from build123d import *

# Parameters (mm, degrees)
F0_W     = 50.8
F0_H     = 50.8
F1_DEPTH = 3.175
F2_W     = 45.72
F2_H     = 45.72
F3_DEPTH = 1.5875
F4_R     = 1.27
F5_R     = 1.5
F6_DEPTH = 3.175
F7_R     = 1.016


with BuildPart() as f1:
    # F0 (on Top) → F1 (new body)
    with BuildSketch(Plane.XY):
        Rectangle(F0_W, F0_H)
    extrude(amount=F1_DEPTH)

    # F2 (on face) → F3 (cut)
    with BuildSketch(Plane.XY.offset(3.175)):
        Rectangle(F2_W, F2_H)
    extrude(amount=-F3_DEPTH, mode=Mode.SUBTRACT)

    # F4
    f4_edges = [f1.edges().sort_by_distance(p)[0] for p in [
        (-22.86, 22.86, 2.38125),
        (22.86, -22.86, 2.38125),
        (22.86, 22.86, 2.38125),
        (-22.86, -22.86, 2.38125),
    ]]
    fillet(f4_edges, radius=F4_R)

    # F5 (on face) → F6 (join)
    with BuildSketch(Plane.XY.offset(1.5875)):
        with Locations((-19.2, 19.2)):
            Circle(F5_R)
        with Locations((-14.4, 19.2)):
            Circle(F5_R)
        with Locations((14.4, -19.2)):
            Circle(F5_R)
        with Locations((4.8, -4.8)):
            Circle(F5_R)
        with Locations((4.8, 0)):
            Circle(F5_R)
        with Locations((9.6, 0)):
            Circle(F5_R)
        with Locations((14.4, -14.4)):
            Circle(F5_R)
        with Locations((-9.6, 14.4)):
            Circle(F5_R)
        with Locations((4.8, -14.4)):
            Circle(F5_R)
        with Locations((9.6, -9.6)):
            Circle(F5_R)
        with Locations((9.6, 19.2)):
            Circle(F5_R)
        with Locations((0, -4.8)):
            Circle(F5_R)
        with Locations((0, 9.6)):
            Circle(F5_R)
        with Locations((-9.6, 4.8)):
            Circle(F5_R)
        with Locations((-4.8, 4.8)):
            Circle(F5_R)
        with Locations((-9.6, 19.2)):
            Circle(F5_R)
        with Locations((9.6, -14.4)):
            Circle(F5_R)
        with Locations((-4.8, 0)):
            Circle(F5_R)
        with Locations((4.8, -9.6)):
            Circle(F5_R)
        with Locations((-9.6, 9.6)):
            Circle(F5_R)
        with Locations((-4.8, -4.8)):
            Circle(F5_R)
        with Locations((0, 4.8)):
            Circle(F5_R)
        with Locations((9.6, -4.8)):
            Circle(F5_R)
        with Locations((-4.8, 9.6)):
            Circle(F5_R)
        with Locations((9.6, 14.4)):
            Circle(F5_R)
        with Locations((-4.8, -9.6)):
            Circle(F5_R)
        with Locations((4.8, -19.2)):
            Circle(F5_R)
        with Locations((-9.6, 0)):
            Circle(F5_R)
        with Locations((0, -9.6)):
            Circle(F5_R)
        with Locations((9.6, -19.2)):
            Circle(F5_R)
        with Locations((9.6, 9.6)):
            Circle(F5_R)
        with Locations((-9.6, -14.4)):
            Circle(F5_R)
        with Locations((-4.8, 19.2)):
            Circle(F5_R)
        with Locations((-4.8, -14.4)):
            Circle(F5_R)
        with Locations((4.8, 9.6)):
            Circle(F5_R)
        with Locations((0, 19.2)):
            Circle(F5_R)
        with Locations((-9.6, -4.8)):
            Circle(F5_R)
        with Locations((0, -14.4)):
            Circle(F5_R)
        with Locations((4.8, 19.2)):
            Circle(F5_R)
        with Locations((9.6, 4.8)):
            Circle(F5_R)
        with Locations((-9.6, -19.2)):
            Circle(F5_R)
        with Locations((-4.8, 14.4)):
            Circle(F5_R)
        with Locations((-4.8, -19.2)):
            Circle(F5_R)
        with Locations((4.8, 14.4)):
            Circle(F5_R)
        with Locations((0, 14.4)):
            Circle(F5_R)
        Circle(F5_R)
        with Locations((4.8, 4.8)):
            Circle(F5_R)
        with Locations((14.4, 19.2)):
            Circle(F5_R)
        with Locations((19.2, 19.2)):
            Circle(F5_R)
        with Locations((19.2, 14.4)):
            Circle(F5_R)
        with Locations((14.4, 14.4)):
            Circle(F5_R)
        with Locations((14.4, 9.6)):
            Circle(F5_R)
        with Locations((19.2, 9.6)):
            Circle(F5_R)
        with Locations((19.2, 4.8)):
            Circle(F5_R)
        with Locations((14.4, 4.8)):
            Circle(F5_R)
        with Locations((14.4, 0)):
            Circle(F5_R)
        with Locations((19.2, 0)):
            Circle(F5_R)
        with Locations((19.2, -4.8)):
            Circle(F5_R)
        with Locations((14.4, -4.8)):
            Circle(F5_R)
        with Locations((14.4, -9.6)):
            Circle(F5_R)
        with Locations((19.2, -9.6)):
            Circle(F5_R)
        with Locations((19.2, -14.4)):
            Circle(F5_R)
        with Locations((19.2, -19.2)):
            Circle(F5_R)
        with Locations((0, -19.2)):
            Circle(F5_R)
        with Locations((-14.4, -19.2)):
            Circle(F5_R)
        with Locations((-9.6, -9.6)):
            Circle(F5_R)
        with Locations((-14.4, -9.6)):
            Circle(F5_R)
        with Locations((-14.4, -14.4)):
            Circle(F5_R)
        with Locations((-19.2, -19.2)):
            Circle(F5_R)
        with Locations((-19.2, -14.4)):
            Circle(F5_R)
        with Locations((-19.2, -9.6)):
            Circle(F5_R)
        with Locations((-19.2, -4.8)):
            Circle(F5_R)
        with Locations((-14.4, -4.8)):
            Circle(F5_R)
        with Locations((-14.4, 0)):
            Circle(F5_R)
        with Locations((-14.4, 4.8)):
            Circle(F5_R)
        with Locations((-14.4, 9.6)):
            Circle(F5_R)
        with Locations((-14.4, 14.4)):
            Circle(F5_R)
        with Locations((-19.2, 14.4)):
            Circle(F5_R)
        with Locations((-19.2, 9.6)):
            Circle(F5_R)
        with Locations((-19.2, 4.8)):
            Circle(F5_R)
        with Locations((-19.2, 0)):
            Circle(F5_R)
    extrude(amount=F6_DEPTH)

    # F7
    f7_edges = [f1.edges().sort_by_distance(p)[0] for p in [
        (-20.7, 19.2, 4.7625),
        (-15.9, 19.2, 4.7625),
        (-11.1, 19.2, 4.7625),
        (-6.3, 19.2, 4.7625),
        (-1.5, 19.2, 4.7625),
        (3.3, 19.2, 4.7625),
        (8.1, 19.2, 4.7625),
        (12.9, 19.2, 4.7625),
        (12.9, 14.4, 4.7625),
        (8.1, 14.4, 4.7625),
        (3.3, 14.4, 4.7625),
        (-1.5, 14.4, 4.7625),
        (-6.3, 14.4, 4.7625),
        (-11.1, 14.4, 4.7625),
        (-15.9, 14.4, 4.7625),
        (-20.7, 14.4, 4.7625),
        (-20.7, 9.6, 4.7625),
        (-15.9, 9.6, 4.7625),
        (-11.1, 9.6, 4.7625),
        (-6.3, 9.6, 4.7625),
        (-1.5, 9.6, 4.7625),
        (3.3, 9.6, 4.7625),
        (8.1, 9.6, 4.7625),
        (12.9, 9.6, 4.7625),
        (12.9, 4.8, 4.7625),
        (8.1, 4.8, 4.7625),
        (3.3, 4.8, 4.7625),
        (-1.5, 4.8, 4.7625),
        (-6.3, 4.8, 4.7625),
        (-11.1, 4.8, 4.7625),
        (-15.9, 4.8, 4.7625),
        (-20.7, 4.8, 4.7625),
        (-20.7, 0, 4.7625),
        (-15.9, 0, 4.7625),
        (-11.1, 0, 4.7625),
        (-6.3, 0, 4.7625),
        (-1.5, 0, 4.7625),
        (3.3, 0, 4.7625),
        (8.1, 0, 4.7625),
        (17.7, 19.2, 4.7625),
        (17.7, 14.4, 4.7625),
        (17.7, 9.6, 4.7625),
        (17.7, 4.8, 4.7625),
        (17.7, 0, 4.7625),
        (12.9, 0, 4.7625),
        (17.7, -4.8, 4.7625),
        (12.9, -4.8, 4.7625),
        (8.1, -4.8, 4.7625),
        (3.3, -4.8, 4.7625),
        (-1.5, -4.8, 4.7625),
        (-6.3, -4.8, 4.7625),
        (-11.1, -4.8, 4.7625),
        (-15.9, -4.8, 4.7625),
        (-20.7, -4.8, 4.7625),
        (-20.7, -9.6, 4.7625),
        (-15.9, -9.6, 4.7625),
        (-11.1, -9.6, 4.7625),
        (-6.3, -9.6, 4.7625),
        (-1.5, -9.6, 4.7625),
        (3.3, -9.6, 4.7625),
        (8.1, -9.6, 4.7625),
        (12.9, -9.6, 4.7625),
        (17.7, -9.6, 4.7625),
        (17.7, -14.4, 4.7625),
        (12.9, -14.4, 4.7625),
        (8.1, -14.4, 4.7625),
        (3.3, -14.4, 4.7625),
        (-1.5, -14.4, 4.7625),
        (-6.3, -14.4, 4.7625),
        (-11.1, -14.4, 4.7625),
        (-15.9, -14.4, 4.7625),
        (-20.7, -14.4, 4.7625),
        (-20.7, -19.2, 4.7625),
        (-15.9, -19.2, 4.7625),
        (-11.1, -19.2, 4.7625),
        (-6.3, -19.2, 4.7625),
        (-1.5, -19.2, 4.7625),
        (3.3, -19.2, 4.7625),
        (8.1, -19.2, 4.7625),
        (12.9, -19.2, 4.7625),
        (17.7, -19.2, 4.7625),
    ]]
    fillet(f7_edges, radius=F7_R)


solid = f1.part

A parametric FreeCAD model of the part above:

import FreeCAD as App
import Part
import Sketcher
from FreeCAD import Vector
Q = App.Units.Quantity


def edges_at(feature, points):
    """Names of the edges that pass closest to the given points."""
    edges = feature.Shape.Edges
    near = lambda p: min(range(len(edges)), key=lambda i: edges[i].distToShape(Part.Vertex(*p))[0])
    return sorted({f"Edge{near(p) + 1}" for p in points})


def add_polygon(sketch, points):
    """Adds a closed chain of lines whose ends are joined by coincident constraints."""
    first, n = sketch.GeometryCount, len(points)
    for a, b in zip(points, points[1:] + points[:1]):
        sketch.addGeometry(Part.LineSegment(App.Vector(*a, 0), App.Vector(*b, 0)), False)
    for i in range(n):
        sketch.addConstraint(Sketcher.Constraint("Coincident", first + i, 2, first + (i + 1) % n, 1))

doc = App.newDocument("Part")
body = doc.addObject("PartDesign::Body", "Body")

sketch1 = doc.addObject("Sketcher::SketchObject", "Sketch")
body.addObject(sketch1)
sketch1.AttachmentSupport = (doc.XY_Plane, [""])
sketch1.MapMode = "FlatFace"
add_polygon(sketch1, [(-25.4, 25.4), (-25.4, -25.4), (25.4, -25.4), (25.4, 25.4)])
sketch1.addConstraint([
    Sketcher.Constraint("Vertical", 0),
    Sketcher.Constraint("Horizontal", 1),
    Sketcher.Constraint("Vertical", 2),
    Sketcher.Constraint("Horizontal", 3),
    Sketcher.Constraint("Symmetric", 0, 2, 2, 2, -1, 1),
    Sketcher.Constraint("Equal", 3, 0),
    Sketcher.Constraint("DistanceX", 1, 1, 1, 2, Q("2 in")),
])
pad1 = doc.addObject("PartDesign::Pad", "Pad")
body.addObject(pad1)
pad1.Profile = sketch1
pad1.Length = Q("0.125 in")

sketch2 = doc.addObject("Sketcher::SketchObject", "Sketch001")
body.addObject(sketch2)
sketch2.AttachmentSupport = (doc.XY_Plane, [""])
sketch2.MapMode = "FlatFace"
sketch2.AttachmentOffset = App.Placement(Vector(0, 0, 0.125 * 25.4), App.Rotation())
add_polygon(sketch2, [(-22.86, 22.86), (-22.86, -22.86), (22.86, -22.86), (22.86, 22.86)])
sketch2.addConstraint([
    Sketcher.Constraint("Vertical", 0),
    Sketcher.Constraint("Horizontal", 1),
    Sketcher.Constraint("Vertical", 2),
    Sketcher.Constraint("Horizontal", 3),
    Sketcher.Constraint("Symmetric", 0, 2, 2, 2, -1, 1),
    Sketcher.Constraint("Equal", 3, 0),
    Sketcher.Constraint("DistanceX", 1, 1, 1, 2, Q("1.8 in")),
])
pocket1 = doc.addObject("PartDesign::Pocket", "Pocket")
body.addObject(pocket1)
pocket1.Profile = sketch2
pocket1.Length = Q("0.0625 in")
doc.recompute()

fillet = doc.addObject("PartDesign::Fillet", "Fillet")
body.addObject(fillet)
fillet.Base = (pocket1, edges_at(pocket1, [
    (-22.86, 22.86, 2.381),
    (22.86, -22.86, 2.381),
    (22.86, 22.86, 2.381),
    (-22.86, -22.86, 2.381),
]))
fillet.Radius = Q("0.05 in")

sketch3 = doc.addObject("Sketcher::SketchObject", "Sketch002")
body.addObject(sketch3)
sketch3.AttachmentSupport = (doc.XY_Plane, [""])
sketch3.MapMode = "FlatFace"
sketch3.AttachmentOffset = App.Placement(Vector(0, 0, 0.0625 * 25.4), App.Rotation())
sketch3.addGeometry([
    Part.Circle(Vector(-19.2, 19.2, 0), Vector(0, 0, 1), 1.5),
    Part.Circle(Vector(-14.4, 19.2, 0), Vector(0, 0, 1), 1.5),
    Part.Circle(Vector(14.4, -19.2, 0), Vector(0, 0, 1), 1.5),
    Part.Circle(Vector(4.8, -4.8, 0), Vector(0, 0, 1), 1.5),
    Part.Circle(Vector(4.8, 0, 0), Vector(0, 0, 1), 1.5),
    Part.Circle(Vector(9.6, 0, 0), Vector(0, 0, 1), 1.5),
    Part.Circle(Vector(14.4, -14.4, 0), Vector(0, 0, 1), 1.5),
    Part.Circle(Vector(-9.6, 14.4, 0), Vector(0, 0, 1), 1.5),
    Part.Circle(Vector(4.8, -14.4, 0), Vector(0, 0, 1), 1.5),
    Part.Circle(Vector(9.6, -9.6, 0), Vector(0, 0, 1), 1.5),
    Part.Circle(Vector(9.6, 19.2, 0), Vector(0, 0, 1), 1.5),
    Part.Circle(Vector(0, -4.8, 0), Vector(0, 0, 1), 1.5),
    Part.Circle(Vector(0, 9.6, 0), Vector(0, 0, 1), 1.5),
    Part.Circle(Vector(-9.6, 4.8, 0), Vector(0, 0, 1), 1.5),
    Part.Circle(Vector(-4.8, 4.8, 0), Vector(0, 0, 1), 1.5),
    Part.Circle(Vector(-9.6, 19.2, 0), Vector(0, 0, 1), 1.5),
    Part.Circle(Vector(9.6, -14.4, 0), Vector(0, 0, 1), 1.5),
    Part.Circle(Vector(-4.8, 0, 0), Vector(0, 0, 1), 1.5),
    Part.Circle(Vector(4.8, -9.6, 0), Vector(0, 0, 1), 1.5),
    Part.Circle(Vector(-9.6, 9.6, 0), Vector(0, 0, 1), 1.5),
    Part.Circle(Vector(-4.8, -4.8, 0), Vector(0, 0, 1), 1.5),
    Part.Circle(Vector(0, 4.8, 0), Vector(0, 0, 1), 1.5),
    Part.Circle(Vector(9.6, -4.8, 0), Vector(0, 0, 1), 1.5),
    Part.Circle(Vector(-4.8, 9.6, 0), Vector(0, 0, 1), 1.5),
    Part.Circle(Vector(9.6, 14.4, 0), Vector(0, 0, 1), 1.5),
    Part.Circle(Vector(-4.8, -9.6, 0), Vector(0, 0, 1), 1.5),
    Part.Circle(Vector(4.8, -19.2, 0), Vector(0, 0, 1), 1.5),
    Part.Circle(Vector(-9.6, 0, 0), Vector(0, 0, 1), 1.5),
    Part.Circle(Vector(0, -9.6, 0), Vector(0, 0, 1), 1.5),
    Part.Circle(Vector(9.6, -19.2, 0), Vector(0, 0, 1), 1.5),
    Part.Circle(Vector(9.6, 9.6, 0), Vector(0, 0, 1), 1.5),
    Part.Circle(Vector(-9.6, -14.4, 0), Vector(0, 0, 1), 1.5),
    Part.Circle(Vector(-4.8, 19.2, 0), Vector(0, 0, 1), 1.5),
    Part.Circle(Vector(-4.8, -14.4, 0), Vector(0, 0, 1), 1.5),
    Part.Circle(Vector(4.8, 9.6, 0), Vector(0, 0, 1), 1.5),
    Part.Circle(Vector(0, 19.2, 0), Vector(0, 0, 1), 1.5),
    Part.Circle(Vector(-9.6, -4.8, 0), Vector(0, 0, 1), 1.5),
    Part.Circle(Vector(0, -14.4, 0), Vector(0, 0, 1), 1.5),
    Part.Circle(Vector(4.8, 19.2, 0), Vector(0, 0, 1), 1.5),
    Part.Circle(Vector(9.6, 4.8, 0), Vector(0, 0, 1), 1.5),
    Part.Circle(Vector(-9.6, -19.2, 0), Vector(0, 0, 1), 1.5),
    Part.Circle(Vector(-4.8, 14.4, 0), Vector(0, 0, 1), 1.5),
    Part.Circle(Vector(-4.8, -19.2, 0), Vector(0, 0, 1), 1.5),
    Part.Circle(Vector(4.8, 14.4, 0), Vector(0, 0, 1), 1.5),
    Part.Circle(Vector(0, 14.4, 0), Vector(0, 0, 1), 1.5),
    Part.Circle(Vector(0, 0, 0), Vector(0, 0, 1), 1.5),
    Part.Circle(Vector(4.8, 4.8, 0), Vector(0, 0, 1), 1.5),
    Part.Circle(Vector(14.4, 19.2, 0), Vector(0, 0, 1), 1.5),
    Part.Circle(Vector(19.2, 19.2, 0), Vector(0, 0, 1), 1.5),
    Part.Circle(Vector(19.2, 14.4, 0), Vector(0, 0, 1), 1.5),
    Part.Circle(Vector(14.4, 14.4, 0), Vector(0, 0, 1), 1.5),
    Part.Circle(Vector(14.4, 9.6, 0), Vector(0, 0, 1), 1.5),
    Part.Circle(Vector(19.2, 9.6, 0), Vector(0, 0, 1), 1.5),
    Part.Circle(Vector(19.2, 4.8, 0), Vector(0, 0, 1), 1.5),
    Part.Circle(Vector(14.4, 4.8, 0), Vector(0, 0, 1), 1.5),
    Part.Circle(Vector(14.4, 0, 0), Vector(0, 0, 1), 1.5),
    Part.Circle(Vector(19.2, 0, 0), Vector(0, 0, 1), 1.5),
    Part.Circle(Vector(19.2, -4.8, 0), Vector(0, 0, 1), 1.5),
    Part.Circle(Vector(14.4, -4.8, 0), Vector(0, 0, 1), 1.5),
    Part.Circle(Vector(14.4, -9.6, 0), Vector(0, 0, 1), 1.5),
    Part.Circle(Vector(19.2, -9.6, 0), Vector(0, 0, 1), 1.5),
    Part.Circle(Vector(19.2, -14.4, 0), Vector(0, 0, 1), 1.5),
    Part.Circle(Vector(19.2, -19.2, 0), Vector(0, 0, 1), 1.5),
    Part.Circle(Vector(0, -19.2, 0), Vector(0, 0, 1), 1.5),
    Part.Circle(Vector(-14.4, -19.2, 0), Vector(0, 0, 1), 1.5),
    Part.Circle(Vector(-9.6, -9.6, 0), Vector(0, 0, 1), 1.5),
    Part.Circle(Vector(-14.4, -9.6, 0), Vector(0, 0, 1), 1.5),
    Part.Circle(Vector(-14.4, -14.4, 0), Vector(0, 0, 1), 1.5),
    Part.Circle(Vector(-19.2, -19.2, 0), Vector(0, 0, 1), 1.5),
    Part.Circle(Vector(-19.2, -14.4, 0), Vector(0, 0, 1), 1.5),
    Part.Circle(Vector(-19.2, -9.6, 0), Vector(0, 0, 1), 1.5),
    Part.Circle(Vector(-19.2, -4.8, 0), Vector(0, 0, 1), 1.5),
    Part.Circle(Vector(-14.4, -4.8, 0), Vector(0, 0, 1), 1.5),
    Part.Circle(Vector(-14.4, 0, 0), Vector(0, 0, 1), 1.5),
    Part.Circle(Vector(-14.4, 4.8, 0), Vector(0, 0, 1), 1.5),
    Part.Circle(Vector(-14.4, 9.6, 0), Vector(0, 0, 1), 1.5),
    Part.Circle(Vector(-14.4, 14.4, 0), Vector(0, 0, 1), 1.5),
    Part.Circle(Vector(-19.2, 14.4, 0), Vector(0, 0, 1), 1.5),
    Part.Circle(Vector(-19.2, 9.6, 0), Vector(0, 0, 1), 1.5),
    Part.Circle(Vector(-19.2, 4.8, 0), Vector(0, 0, 1), 1.5),
    Part.Circle(Vector(-19.2, 0, 0), Vector(0, 0, 1), 1.5),
], False)
sketch3.addConstraint([
    Sketcher.Constraint("Coincident", 45, 3, -1, 1),
    Sketcher.Constraint("Equal", 0, 1),
    Sketcher.Constraint("Equal", 1, 2),
    Sketcher.Constraint("Equal", 2, 3),
    Sketcher.Constraint("Equal", 3, 4),
    Sketcher.Constraint("Equal", 4, 5),
    Sketcher.Constraint("Equal", 5, 6),
    Sketcher.Constraint("Equal", 6, 7),
    Sketcher.Constraint("Equal", 7, 8),
    Sketcher.Constraint("Equal", 8, 9),
    Sketcher.Constraint("Equal", 9, 10),
    Sketcher.Constraint("Equal", 10, 11),
    Sketcher.Constraint("Equal", 11, 12),
    Sketcher.Constraint("Equal", 12, 13),
    Sketcher.Constraint("Equal", 13, 14),
    Sketcher.Constraint("Equal", 14, 15),
    Sketcher.Constraint("Equal", 15, 16),
    Sketcher.Constraint("Equal", 16, 17),
    Sketcher.Constraint("Equal", 17, 18),
    Sketcher.Constraint("Equal", 18, 19),
    Sketcher.Constraint("Equal", 19, 20),
    Sketcher.Constraint("Equal", 20, 21),
    Sketcher.Constraint("Equal", 21, 22),
    Sketcher.Constraint("Equal", 22, 23),
    Sketcher.Constraint("Equal", 23, 24),
    Sketcher.Constraint("Equal", 24, 25),
    Sketcher.Constraint("Equal", 25, 26),
    Sketcher.Constraint("Equal", 26, 27),
    Sketcher.Constraint("Equal", 27, 28),
    Sketcher.Constraint("Equal", 28, 29),
    Sketcher.Constraint("Equal", 29, 30),
    Sketcher.Constraint("Equal", 30, 31),
    Sketcher.Constraint("Equal", 31, 32),
    Sketcher.Constraint("Equal", 32, 33),
    Sketcher.Constraint("Equal", 33, 34),
    Sketcher.Constraint("Equal", 34, 35),
    Sketcher.Constraint("Equal", 35, 36),
    Sketcher.Constraint("Equal", 36, 37),
    Sketcher.Constraint("Equal", 37, 38),
    Sketcher.Constraint("Equal", 38, 39),
    Sketcher.Constraint("Equal", 39, 40),
    Sketcher.Constraint("Equal", 40, 41),
    Sketcher.Constraint("Equal", 41, 42),
    Sketcher.Constraint("Equal", 42, 43),
    Sketcher.Constraint("Equal", 43, 44),
    Sketcher.Constraint("Equal", 44, 45),
    Sketcher.Constraint("Equal", 45, 46),
    Sketcher.Constraint("Equal", 46, 47),
    Sketcher.Constraint("Equal", 47, 48),
    Sketcher.Constraint("Equal", 48, 49),
    Sketcher.Constraint("Equal", 49, 50),
    Sketcher.Constraint("Equal", 50, 51),
    Sketcher.Constraint("Equal", 51, 52),
    Sketcher.Constraint("Equal", 52, 53),
    Sketcher.Constraint("Equal", 53, 54),
    Sketcher.Constraint("Equal", 54, 55),
    Sketcher.Constraint("Equal", 55, 56),
    Sketcher.Constraint("Equal", 56, 57),
    Sketcher.Constraint("Equal", 57, 58),
    Sketcher.Constraint("Equal", 58, 59),
    Sketcher.Constraint("Equal", 59, 60),
    Sketcher.Constraint("Equal", 60, 61),
    Sketcher.Constraint("Equal", 61, 62),
    Sketcher.Constraint("Equal", 62, 63),
    Sketcher.Constraint("Equal", 63, 64),
    Sketcher.Constraint("Equal", 64, 65),
    Sketcher.Constraint("Equal", 65, 66),
    Sketcher.Constraint("Equal", 66, 67),
    Sketcher.Constraint("Equal", 67, 68),
    Sketcher.Constraint("Equal", 68, 69),
    Sketcher.Constraint("Equal", 69, 70),
    Sketcher.Constraint("Equal", 70, 71),
    Sketcher.Constraint("Equal", 71, 72),
    Sketcher.Constraint("Equal", 72, 73),
    Sketcher.Constraint("Equal", 73, 74),
    Sketcher.Constraint("Equal", 74, 75),
    Sketcher.Constraint("Equal", 75, 76),
    Sketcher.Constraint("Equal", 76, 77),
    Sketcher.Constraint("Equal", 77, 78),
    Sketcher.Constraint("Equal", 78, 79),
    Sketcher.Constraint("Equal", 79, 80),
    Sketcher.Constraint("Symmetric", 1, 3, 2, 3, -1, 1),
    Sketcher.Constraint("Symmetric", 3, 3, 14, 3, -1, 1),
    Sketcher.Constraint("Symmetric", 7, 3, 16, 3, -1, 1),
    Sketcher.Constraint("Symmetric", 4, 3, 17, 3, -1, 1),
    Sketcher.Constraint("Symmetric", 9, 3, 19, 3, -1, 1),
    Sketcher.Constraint("Symmetric", 11, 3, 21, 3, -1, 1),
    Sketcher.Constraint("Symmetric", 13, 3, 22, 3, -1, 1),
    Sketcher.Constraint("Symmetric", 18, 3, 23, 3, -1, 1),
    Sketcher.Constraint("Symmetric", 5, 3, 27, 3, -1, 1),
    Sketcher.Constraint("Symmetric", 12, 3, 28, 3, -1, 1),
    Sketcher.Constraint("Symmetric", 15, 3, 29, 3, -1, 1),
    Sketcher.Constraint("Symmetric", 24, 3, 31, 3, -1, 1),
    Sketcher.Constraint("Symmetric", 26, 3, 32, 3, -1, 1),
    Sketcher.Constraint("Symmetric", 25, 3, 34, 3, -1, 1),
    Sketcher.Constraint("Symmetric", 36, 3, 39, 3, -1, 1),
    Sketcher.Constraint("Symmetric", 10, 3, 40, 3, -1, 1),
    Sketcher.Constraint("Symmetric", 8, 3, 41, 3, -1, 1),
    Sketcher.Constraint("Symmetric", 38, 3, 42, 3, -1, 1),
    Sketcher.Constraint("Symmetric", 33, 3, 43, 3, -1, 1),
    Sketcher.Constraint("Symmetric", 37, 3, 44, 3, -1, 1),
    Sketcher.Constraint("Symmetric", 20, 3, 46, 3, -1, 1),
    Sketcher.Constraint("Symmetric", 0, 3, 62, 3, -1, 1),
    Sketcher.Constraint("Symmetric", 35, 3, 63, 3, -1, 1),
    Sketcher.Constraint("Symmetric", 47, 3, 64, 3, -1, 1),
    Sketcher.Constraint("Symmetric", 30, 3, 65, 3, -1, 1),
    Sketcher.Constraint("Symmetric", 51, 3, 66, 3, -1, 1),
    Sketcher.Constraint("Symmetric", 50, 3, 67, 3, -1, 1),
    Sketcher.Constraint("Symmetric", 48, 3, 68, 3, -1, 1),
    Sketcher.Constraint("Symmetric", 49, 3, 69, 3, -1, 1),
    Sketcher.Constraint("Symmetric", 52, 3, 70, 3, -1, 1),
    Sketcher.Constraint("Symmetric", 53, 3, 71, 3, -1, 1),
    Sketcher.Constraint("Symmetric", 54, 3, 72, 3, -1, 1),
    Sketcher.Constraint("Symmetric", 55, 3, 73, 3, -1, 1),
    Sketcher.Constraint("Symmetric", 58, 3, 74, 3, -1, 1),
    Sketcher.Constraint("Symmetric", 59, 3, 75, 3, -1, 1),
    Sketcher.Constraint("Symmetric", 6, 3, 76, 3, -1, 1),
    Sketcher.Constraint("Symmetric", 61, 3, 77, 3, -1, 1),
    Sketcher.Constraint("Symmetric", 60, 3, 78, 3, -1, 1),
    Sketcher.Constraint("Symmetric", 57, 3, 79, 3, -1, 1),
    Sketcher.Constraint("Symmetric", 56, 3, 80, 3, -1, 1),
    Sketcher.Constraint("Symmetric", 10, 3, 15, 3, -2),
    Sketcher.Constraint("Symmetric", 3, 3, 20, 3, -2),
    Sketcher.Constraint("Symmetric", 7, 3, 24, 3, -2),
    Sketcher.Constraint("Symmetric", 18, 3, 25, 3, -2),
    Sketcher.Constraint("Symmetric", 19, 3, 30, 3, -2),
    Sketcher.Constraint("Symmetric", 8, 3, 33, 3, -2),
    Sketcher.Constraint("Symmetric", 22, 3, 36, 3, -2),
    Sketcher.Constraint("Symmetric", 32, 3, 38, 3, -2),
    Sketcher.Constraint("Symmetric", 1, 3, 47, 3, -2),
    Sketcher.Constraint("Symmetric", 0, 3, 48, 3, -2),
    Sketcher.Constraint("Symmetric", 59, 3, 66, 3, -2),
    Sketcher.Constraint("Symmetric", 6, 3, 67, 3, -2),
    Sketcher.Constraint("Symmetric", 61, 3, 69, 3, -2),
    Sketcher.Constraint("Symmetric", 60, 3, 70, 3, -2),
    Sketcher.Constraint("Symmetric", 57, 3, 71, 3, -2),
    Sketcher.Constraint("Symmetric", 58, 3, 72, 3, -2),
    Sketcher.Constraint("PointOnObject", 4, 3, -1),
    Sketcher.Constraint("PointOnObject", 5, 3, -1),
    Sketcher.Constraint("PointOnObject", 11, 3, -2),
    Sketcher.Constraint("PointOnObject", 12, 3, -2),
    Sketcher.Constraint("PointOnObject", 35, 3, -2),
    Sketcher.Constraint("PointOnObject", 37, 3, -2),
    Sketcher.Constraint("PointOnObject", 55, 3, -1),
    Sketcher.Constraint("PointOnObject", 56, 3, -1),
    Sketcher.Constraint("Horizontal", 0, 3, 1, 3),
    Sketcher.Constraint("Horizontal", 6, 3, 8, 3),
    Sketcher.Constraint("Horizontal", 1, 3, 10, 3),
    Sketcher.Constraint("Horizontal", 3, 3, 11, 3),
    Sketcher.Constraint("Horizontal", 13, 3, 14, 3),
    Sketcher.Constraint("Horizontal", 8, 3, 16, 3),
    Sketcher.Constraint("Horizontal", 9, 3, 18, 3),
    Sketcher.Constraint("Horizontal", 12, 3, 19, 3),
    Sketcher.Constraint("Horizontal", 2, 3, 26, 3),
    Sketcher.Constraint("Horizontal", 32, 3, 35, 3),
    Sketcher.Constraint("Horizontal", 33, 3, 37, 3),
    Sketcher.Constraint("Horizontal", 44, 3, 49, 3),
    Sketcher.Constraint("Horizontal", 34, 3, 51, 3),
    Sketcher.Constraint("Horizontal", 51, 3, 52, 3),
    Sketcher.Constraint("Horizontal", 46, 3, 53, 3),
    Sketcher.Constraint("Horizontal", 53, 3, 54, 3),
    Sketcher.Constraint("Vertical", 3, 3, 4, 3),
    Sketcher.Constraint("Vertical", 2, 3, 6, 3),
    Sketcher.Constraint("Vertical", 4, 3, 8, 3),
    Sketcher.Constraint("Vertical", 5, 3, 9, 3),
    Sketcher.Constraint("Vertical", 9, 3, 10, 3),
    Sketcher.Constraint("Vertical", 7, 3, 13, 3),
    Sketcher.Constraint("Vertical", 13, 3, 15, 3),
    Sketcher.Constraint("Vertical", 8, 3, 18, 3),
    Sketcher.Constraint("Vertical", 18, 3, 26, 3),
    Sketcher.Constraint("Vertical", 48, 3, 49, 3),
    Sketcher.Constraint("Vertical", 50, 3, 51, 3),
    Sketcher.Constraint("Vertical", 49, 3, 52, 3),
    Sketcher.Constraint("Vertical", 52, 3, 53, 3),
    Sketcher.Constraint("Vertical", 51, 3, 54, 3),
    Sketcher.Constraint("Vertical", 54, 3, 55, 3),
    Sketcher.Constraint("Vertical", 53, 3, 56, 3),
    Sketcher.Constraint("Diameter", 0, 3.0),
    Sketcher.Constraint("DistanceX", 0, 3, -1, 1, 19.2),
    Sketcher.Constraint("DistanceY", -1, 1, 0, 3, 19.2),
    Sketcher.Constraint("DistanceX", 1, 3, -1, 1, 14.4),
    Sketcher.Constraint("DistanceX", -1, 1, 3, 3, 4.8),
    Sketcher.Constraint("DistanceY", 3, 3, -1, 1, 4.8),
    Sketcher.Constraint("DistanceX", -1, 1, 5, 3, 9.6),
    Sketcher.Constraint("DistanceY", 6, 3, -1, 1, 14.4),
    Sketcher.Constraint("DistanceY", 9, 3, -1, 1, 9.6),
])
pad2 = doc.addObject("PartDesign::Pad", "Pad001")
body.addObject(pad2)
pad2.Profile = sketch3
pad2.Length = Q("0.125 in")
doc.recompute()

fillet2 = doc.addObject("PartDesign::Fillet", "Fillet001")
body.addObject(fillet2)
fillet2.Base = (pad2, edges_at(pad2, [
    (-20.7, 19.2, 4.763),
    (-15.9, 19.2, 4.763),
    (-11.1, 19.2, 4.763),
    (-6.3, 19.2, 4.763),
    (-1.5, 19.2, 4.763),
    (3.3, 19.2, 4.763),
    (8.1, 19.2, 4.763),
    (12.9, 19.2, 4.763),
    (12.9, 14.4, 4.763),
    (8.1, 14.4, 4.763),
    (3.3, 14.4, 4.763),
    (-1.5, 14.4, 4.763),
    (-6.3, 14.4, 4.763),
    (-11.1, 14.4, 4.763),
    (-15.9, 14.4, 4.763),
    (-20.7, 14.4, 4.763),
    (-20.7, 9.6, 4.763),
    (-15.9, 9.6, 4.763),
    (-11.1, 9.6, 4.763),
    (-6.3, 9.6, 4.763),
    (-1.5, 9.6, 4.763),
    (3.3, 9.6, 4.763),
    (8.1, 9.6, 4.763),
    (12.9, 9.6, 4.763),
    (12.9, 4.8, 4.763),
    (8.1, 4.8, 4.763),
    (3.3, 4.8, 4.763),
    (-1.5, 4.8, 4.763),
    (-6.3, 4.8, 4.763),
    (-11.1, 4.8, 4.763),
    (-15.9, 4.8, 4.763),
    (-20.7, 4.8, 4.763),
    (-20.7, 0, 4.763),
    (-15.9, 0, 4.763),
    (-11.1, 0, 4.763),
    (-6.3, 0, 4.763),
    (-1.5, 0, 4.763),
    (3.3, 0, 4.763),
    (8.1, 0, 4.763),
    (17.7, 19.2, 4.763),
    (17.7, 14.4, 4.763),
    (17.7, 9.6, 4.763),
    (17.7, 4.8, 4.763),
    (17.7, 0, 4.763),
    (12.9, 0, 4.763),
    (17.7, -4.8, 4.763),
    (12.9, -4.8, 4.763),
    (8.1, -4.8, 4.763),
    (3.3, -4.8, 4.763),
    (-1.5, -4.8, 4.763),
    (-6.3, -4.8, 4.763),
    (-11.1, -4.8, 4.763),
    (-15.9, -4.8, 4.763),
    (-20.7, -4.8, 4.763),
    (-20.7, -9.6, 4.763),
    (-15.9, -9.6, 4.763),
    (-11.1, -9.6, 4.763),
    (-6.3, -9.6, 4.763),
    (-1.5, -9.6, 4.763),
    (3.3, -9.6, 4.763),
    (8.1, -9.6, 4.763),
    (12.9, -9.6, 4.763),
    (17.7, -9.6, 4.763),
    (17.7, -14.4, 4.763),
    (12.9, -14.4, 4.763),
    (8.1, -14.4, 4.763),
    (3.3, -14.4, 4.763),
    (-1.5, -14.4, 4.763),
    (-6.3, -14.4, 4.763),
    (-11.1, -14.4, 4.763),
    (-15.9, -14.4, 4.763),
    (-20.7, -14.4, 4.763),
    (-20.7, -19.2, 4.763),
    (-15.9, -19.2, 4.763),
    (-11.1, -19.2, 4.763),
    (-6.3, -19.2, 4.763),
    (-1.5, -19.2, 4.763),
    (3.3, -19.2, 4.763),
    (8.1, -19.2, 4.763),
    (12.9, -19.2, 4.763),
    (17.7, -19.2, 4.763),
]))
fillet2.Radius = Q("0.04 in")

doc.recompute()
